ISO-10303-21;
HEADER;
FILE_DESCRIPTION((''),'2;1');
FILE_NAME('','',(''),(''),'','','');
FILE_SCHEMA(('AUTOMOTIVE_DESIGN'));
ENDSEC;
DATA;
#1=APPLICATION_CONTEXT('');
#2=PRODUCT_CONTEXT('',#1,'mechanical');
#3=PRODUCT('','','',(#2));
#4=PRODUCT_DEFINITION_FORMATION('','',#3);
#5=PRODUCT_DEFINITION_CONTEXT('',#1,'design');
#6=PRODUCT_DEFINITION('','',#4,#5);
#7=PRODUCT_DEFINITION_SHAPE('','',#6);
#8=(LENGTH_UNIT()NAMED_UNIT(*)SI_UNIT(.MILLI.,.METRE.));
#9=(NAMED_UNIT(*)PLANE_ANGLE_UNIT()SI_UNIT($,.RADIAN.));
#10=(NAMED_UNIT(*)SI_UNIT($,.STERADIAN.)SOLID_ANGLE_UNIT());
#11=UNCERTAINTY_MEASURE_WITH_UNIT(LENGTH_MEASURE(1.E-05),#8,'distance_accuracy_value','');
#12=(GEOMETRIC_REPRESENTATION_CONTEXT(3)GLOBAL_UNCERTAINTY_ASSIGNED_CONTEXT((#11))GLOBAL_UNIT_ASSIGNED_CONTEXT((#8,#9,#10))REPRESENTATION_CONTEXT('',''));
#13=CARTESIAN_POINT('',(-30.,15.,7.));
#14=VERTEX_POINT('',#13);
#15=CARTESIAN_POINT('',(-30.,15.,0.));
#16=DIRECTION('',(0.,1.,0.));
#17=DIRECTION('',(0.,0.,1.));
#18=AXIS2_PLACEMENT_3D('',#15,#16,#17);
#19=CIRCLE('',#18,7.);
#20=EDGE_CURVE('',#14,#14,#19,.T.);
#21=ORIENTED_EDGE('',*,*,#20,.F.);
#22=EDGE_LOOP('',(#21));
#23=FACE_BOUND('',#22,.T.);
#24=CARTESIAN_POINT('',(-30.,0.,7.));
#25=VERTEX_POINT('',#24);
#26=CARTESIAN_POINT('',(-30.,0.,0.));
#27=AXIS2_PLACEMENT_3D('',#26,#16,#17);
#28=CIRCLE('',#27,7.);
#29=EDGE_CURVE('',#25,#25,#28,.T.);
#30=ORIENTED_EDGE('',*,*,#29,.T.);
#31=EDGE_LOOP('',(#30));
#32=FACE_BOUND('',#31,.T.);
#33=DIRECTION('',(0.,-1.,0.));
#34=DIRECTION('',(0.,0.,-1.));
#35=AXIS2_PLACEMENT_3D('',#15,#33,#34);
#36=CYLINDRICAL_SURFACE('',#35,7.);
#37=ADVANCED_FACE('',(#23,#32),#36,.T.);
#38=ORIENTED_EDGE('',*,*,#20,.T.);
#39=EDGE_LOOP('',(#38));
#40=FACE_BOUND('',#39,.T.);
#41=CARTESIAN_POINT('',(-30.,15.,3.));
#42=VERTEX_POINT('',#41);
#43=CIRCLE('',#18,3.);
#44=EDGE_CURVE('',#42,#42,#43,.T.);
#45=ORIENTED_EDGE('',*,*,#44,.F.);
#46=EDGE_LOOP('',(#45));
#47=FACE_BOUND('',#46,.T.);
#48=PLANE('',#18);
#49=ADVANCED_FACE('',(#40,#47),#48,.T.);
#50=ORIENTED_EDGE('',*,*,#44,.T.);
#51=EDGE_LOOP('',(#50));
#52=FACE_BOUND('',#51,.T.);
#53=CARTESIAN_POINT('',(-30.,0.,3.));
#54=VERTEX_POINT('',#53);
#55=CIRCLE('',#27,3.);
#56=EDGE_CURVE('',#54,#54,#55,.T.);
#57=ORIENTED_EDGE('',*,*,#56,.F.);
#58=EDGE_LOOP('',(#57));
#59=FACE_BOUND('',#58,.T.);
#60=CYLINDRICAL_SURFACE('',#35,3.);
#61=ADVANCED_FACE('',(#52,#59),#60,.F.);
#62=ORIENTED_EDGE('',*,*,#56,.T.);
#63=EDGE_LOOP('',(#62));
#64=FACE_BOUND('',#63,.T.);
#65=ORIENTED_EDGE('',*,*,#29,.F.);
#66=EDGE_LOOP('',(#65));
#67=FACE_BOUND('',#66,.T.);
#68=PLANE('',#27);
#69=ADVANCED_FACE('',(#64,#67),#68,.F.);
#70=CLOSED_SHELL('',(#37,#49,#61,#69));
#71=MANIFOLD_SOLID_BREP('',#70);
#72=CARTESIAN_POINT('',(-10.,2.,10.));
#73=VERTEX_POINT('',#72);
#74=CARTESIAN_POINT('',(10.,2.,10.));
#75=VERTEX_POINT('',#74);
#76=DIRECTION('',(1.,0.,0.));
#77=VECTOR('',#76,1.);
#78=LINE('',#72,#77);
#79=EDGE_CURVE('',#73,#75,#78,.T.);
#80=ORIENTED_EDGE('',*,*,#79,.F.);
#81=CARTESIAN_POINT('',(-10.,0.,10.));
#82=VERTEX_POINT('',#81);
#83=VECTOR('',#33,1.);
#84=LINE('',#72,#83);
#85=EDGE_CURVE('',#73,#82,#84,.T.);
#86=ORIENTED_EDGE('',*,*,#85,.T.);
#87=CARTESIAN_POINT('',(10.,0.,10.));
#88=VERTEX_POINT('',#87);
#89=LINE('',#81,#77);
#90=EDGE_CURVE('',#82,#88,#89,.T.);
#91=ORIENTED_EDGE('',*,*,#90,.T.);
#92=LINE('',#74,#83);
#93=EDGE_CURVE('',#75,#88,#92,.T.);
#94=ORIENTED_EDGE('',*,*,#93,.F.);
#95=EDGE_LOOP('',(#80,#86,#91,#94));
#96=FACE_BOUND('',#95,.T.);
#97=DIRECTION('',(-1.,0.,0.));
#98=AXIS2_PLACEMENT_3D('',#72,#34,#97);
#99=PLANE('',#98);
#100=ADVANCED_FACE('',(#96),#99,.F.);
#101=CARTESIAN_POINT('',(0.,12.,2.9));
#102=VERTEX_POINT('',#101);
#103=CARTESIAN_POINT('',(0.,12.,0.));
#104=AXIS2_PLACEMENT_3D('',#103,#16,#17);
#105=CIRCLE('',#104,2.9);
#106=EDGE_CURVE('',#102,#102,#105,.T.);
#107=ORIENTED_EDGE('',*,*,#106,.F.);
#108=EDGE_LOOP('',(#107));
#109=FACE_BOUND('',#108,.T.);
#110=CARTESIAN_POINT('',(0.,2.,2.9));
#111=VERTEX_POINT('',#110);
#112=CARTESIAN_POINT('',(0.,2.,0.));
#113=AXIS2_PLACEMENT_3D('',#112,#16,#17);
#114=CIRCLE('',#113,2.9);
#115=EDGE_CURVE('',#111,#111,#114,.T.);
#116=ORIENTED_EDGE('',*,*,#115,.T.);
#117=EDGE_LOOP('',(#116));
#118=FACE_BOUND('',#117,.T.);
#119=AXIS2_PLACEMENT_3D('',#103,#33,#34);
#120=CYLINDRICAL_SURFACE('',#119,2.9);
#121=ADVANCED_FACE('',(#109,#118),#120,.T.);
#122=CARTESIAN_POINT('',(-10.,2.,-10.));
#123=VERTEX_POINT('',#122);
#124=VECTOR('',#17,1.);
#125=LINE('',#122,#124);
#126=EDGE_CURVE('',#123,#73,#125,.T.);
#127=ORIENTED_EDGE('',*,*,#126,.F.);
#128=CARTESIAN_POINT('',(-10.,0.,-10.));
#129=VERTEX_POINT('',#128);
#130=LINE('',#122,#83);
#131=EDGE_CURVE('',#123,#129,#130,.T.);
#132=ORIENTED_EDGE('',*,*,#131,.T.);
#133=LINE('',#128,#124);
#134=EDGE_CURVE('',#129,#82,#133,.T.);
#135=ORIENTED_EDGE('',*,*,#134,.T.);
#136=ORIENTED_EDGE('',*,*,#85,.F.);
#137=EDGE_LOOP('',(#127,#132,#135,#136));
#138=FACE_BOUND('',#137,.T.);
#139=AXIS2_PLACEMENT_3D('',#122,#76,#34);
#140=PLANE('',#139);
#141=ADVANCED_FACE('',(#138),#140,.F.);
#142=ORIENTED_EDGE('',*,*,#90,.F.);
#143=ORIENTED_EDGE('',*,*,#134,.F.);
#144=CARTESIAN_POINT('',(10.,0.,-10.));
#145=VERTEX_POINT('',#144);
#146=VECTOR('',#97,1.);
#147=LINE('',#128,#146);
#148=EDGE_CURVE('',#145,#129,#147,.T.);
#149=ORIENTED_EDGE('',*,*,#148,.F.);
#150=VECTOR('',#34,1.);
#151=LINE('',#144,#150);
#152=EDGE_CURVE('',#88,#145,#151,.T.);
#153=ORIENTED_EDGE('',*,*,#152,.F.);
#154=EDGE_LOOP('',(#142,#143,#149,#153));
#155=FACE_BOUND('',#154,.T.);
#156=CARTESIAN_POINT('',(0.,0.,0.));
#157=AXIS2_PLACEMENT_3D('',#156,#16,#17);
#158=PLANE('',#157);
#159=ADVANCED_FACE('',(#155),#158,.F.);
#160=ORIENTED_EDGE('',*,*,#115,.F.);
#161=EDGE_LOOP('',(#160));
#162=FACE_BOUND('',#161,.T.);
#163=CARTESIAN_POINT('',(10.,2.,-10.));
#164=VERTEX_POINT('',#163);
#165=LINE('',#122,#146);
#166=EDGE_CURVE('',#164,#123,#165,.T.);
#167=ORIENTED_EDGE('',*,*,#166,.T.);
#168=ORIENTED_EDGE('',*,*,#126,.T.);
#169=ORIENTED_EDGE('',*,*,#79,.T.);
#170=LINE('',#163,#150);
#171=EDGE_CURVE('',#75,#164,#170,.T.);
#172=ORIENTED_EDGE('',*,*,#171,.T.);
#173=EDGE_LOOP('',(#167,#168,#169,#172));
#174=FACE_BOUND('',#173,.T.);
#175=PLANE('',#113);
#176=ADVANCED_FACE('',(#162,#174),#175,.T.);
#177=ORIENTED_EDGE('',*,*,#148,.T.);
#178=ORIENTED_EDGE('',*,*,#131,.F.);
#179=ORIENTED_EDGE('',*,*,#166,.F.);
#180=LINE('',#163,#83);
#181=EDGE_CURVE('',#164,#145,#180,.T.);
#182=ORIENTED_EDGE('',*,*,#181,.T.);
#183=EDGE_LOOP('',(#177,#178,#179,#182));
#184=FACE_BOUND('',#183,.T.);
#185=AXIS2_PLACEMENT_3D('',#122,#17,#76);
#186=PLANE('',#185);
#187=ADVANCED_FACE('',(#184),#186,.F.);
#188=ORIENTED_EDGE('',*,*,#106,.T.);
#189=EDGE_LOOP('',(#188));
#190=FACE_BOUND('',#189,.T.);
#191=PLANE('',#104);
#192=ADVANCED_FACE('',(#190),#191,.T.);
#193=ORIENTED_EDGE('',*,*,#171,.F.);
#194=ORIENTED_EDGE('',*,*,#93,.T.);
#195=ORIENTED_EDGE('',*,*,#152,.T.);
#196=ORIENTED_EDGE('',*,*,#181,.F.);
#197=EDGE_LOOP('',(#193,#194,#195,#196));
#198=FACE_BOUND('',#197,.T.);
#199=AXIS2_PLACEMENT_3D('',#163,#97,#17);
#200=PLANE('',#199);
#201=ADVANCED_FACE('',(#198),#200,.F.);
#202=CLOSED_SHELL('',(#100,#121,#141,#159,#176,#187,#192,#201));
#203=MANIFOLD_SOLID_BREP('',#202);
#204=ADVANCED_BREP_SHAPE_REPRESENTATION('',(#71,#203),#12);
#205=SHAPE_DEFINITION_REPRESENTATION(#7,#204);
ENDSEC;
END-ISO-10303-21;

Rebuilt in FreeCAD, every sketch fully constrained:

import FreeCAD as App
import Part
import Sketcher

V = App.Vector


def add_polygon(sketch, points):
    """Adds a closed chain of lines whose ends are joined by coincident constraints."""
    first, n = sketch.GeometryCount, len(points)
    for a, b in zip(points, points[1:] + points[:1]):
        sketch.addGeometry(Part.LineSegment(App.Vector(*a, 0), App.Vector(*b, 0)), False)
    for i in range(n):
        sketch.addConstraint(Sketcher.Constraint("Coincident", first + i, 2, first + (i + 1) % n, 1))

doc = App.newDocument("Part")
params = doc.addObject("Spreadsheet::Sheet", "Params")
for row, (alias, value) in enumerate([
    ("sketch1_diameter", "5.8 mm"),
    ("pad1_length", "12 mm"),
    ("sketch2_diameter", "5.8 mm"),
    ("sketch2_width", "20 mm"),
    ("pad2_length", "2 mm"),
    ("sketch3_diameter", "14 mm"),
    ("sketch3_diameter2", "6 mm"),
    ("pad3_length", "15 mm"),
], start=1):
    params.set(f"A{row}", alias)
    params.set(f"B{row}", "=" + value)
    params.setAlias(f"B{row}", alias)

body = doc.addObject("PartDesign::Body", "Body")

sketch1 = doc.addObject("Sketcher::SketchObject", "Sketch")
body.addObject(sketch1)
sketch1.AttachmentSupport = (doc.XZ_Plane, [""])
sketch1.MapMode = "FlatFace"
sketch1.addGeometry(Part.Circle(V(0, 0, 0), V(0, 0, 1), 2.9), False)
sketch1.addConstraint([
    Sketcher.Constraint("Coincident", 0, 3, -1, 1),
    Sketcher.Constraint("Diameter", 0, 5.8),
])
sketch1.setExpression("Constraints[1]", "Params.sketch1_diameter")
pad1 = doc.addObject("PartDesign::Pad", "Pad")
body.addObject(pad1)
pad1.Profile = sketch1
pad1.setExpression("Length", "Params.pad1_length")
pad1.Reversed = True

sketch2 = doc.addObject("Sketcher::SketchObject", "Sketch001")
body.addObject(sketch2)
sketch2.AttachmentSupport = (doc.XZ_Plane, [""])
sketch2.MapMode = "FlatFace"
add_polygon(sketch2, [(-10, -10), (-10, 10), (10, 10), (10, -10)])
sketch2.addGeometry(Part.Circle(V(0, 0, 0), V(0, 0, 1), 2.9), False)
sketch2.addConstraint([
    Sketcher.Constraint("Vertical", 0),
    Sketcher.Constraint("Horizontal", 1),
    Sketcher.Constraint("Vertical", 2),
    Sketcher.Constraint("Horizontal", 3),
    Sketcher.Constraint("Coincident", 4, 3, -1, 1),
    Sketcher.Constraint("Symmetric", 0, 2, 2, 2, -1, 1),
    Sketcher.Constraint("Equal", 3, 0),
    Sketcher.Constraint("Diameter", 4, 5.8),
    Sketcher.Constraint("DistanceX", 1, 1, 1, 2, 20.0),
])
sketch2.setExpression("Constraints[11]", "Params.sketch2_diameter")
sketch2.setExpression("Constraints[12]", "Params.sketch2_width")
pad2 = doc.addObject("PartDesign::Pad", "Pad001")
body.addObject(pad2)
pad2.Profile = sketch2
pad2.setExpression("Length", "Params.pad2_length")
pad2.Reversed = True
body2 = doc.addObject("PartDesign::Body", "Body001")

sketch3 = doc.addObject("Sketcher::SketchObject", "Sketch002")
body2.addObject(sketch3)
sketch3.AttachmentSupport = (doc.getObject("XZ_Plane001"), [""])
sketch3.MapMode = "FlatFace"
sketch3.addGeometry([
    Part.Circle(V(-30, 0, 0), V(0, 0, 1), 7),
    Part.Circle(V(-30, 0, 0), V(0, 0, 1), 3),
], False)
sketch3.addConstraint([
    Sketcher.Constraint("Coincident", 1, 3, 0, 3),
    Sketcher.Constraint("PointOnObject", 0, 3, -1),
    Sketcher.Constraint("Diameter", 0, 14.0),
    Sketcher.Constraint("Diameter", 1, 6.0),
    Sketcher.Constraint("DistanceX", 0, 3, -1, 1, 30.0),
])
sketch3.setExpression("Constraints[2]", "Params.sketch3_diameter")
sketch3.setExpression("Constraints[3]", "Params.sketch3_diameter2")
pad3 = doc.addObject("PartDesign::Pad", "Pad002")
body2.addObject(pad3)
pad3.Profile = sketch3
pad3.setExpression("Length", "Params.pad3_length")
pad3.Reversed = True

doc.recompute()
